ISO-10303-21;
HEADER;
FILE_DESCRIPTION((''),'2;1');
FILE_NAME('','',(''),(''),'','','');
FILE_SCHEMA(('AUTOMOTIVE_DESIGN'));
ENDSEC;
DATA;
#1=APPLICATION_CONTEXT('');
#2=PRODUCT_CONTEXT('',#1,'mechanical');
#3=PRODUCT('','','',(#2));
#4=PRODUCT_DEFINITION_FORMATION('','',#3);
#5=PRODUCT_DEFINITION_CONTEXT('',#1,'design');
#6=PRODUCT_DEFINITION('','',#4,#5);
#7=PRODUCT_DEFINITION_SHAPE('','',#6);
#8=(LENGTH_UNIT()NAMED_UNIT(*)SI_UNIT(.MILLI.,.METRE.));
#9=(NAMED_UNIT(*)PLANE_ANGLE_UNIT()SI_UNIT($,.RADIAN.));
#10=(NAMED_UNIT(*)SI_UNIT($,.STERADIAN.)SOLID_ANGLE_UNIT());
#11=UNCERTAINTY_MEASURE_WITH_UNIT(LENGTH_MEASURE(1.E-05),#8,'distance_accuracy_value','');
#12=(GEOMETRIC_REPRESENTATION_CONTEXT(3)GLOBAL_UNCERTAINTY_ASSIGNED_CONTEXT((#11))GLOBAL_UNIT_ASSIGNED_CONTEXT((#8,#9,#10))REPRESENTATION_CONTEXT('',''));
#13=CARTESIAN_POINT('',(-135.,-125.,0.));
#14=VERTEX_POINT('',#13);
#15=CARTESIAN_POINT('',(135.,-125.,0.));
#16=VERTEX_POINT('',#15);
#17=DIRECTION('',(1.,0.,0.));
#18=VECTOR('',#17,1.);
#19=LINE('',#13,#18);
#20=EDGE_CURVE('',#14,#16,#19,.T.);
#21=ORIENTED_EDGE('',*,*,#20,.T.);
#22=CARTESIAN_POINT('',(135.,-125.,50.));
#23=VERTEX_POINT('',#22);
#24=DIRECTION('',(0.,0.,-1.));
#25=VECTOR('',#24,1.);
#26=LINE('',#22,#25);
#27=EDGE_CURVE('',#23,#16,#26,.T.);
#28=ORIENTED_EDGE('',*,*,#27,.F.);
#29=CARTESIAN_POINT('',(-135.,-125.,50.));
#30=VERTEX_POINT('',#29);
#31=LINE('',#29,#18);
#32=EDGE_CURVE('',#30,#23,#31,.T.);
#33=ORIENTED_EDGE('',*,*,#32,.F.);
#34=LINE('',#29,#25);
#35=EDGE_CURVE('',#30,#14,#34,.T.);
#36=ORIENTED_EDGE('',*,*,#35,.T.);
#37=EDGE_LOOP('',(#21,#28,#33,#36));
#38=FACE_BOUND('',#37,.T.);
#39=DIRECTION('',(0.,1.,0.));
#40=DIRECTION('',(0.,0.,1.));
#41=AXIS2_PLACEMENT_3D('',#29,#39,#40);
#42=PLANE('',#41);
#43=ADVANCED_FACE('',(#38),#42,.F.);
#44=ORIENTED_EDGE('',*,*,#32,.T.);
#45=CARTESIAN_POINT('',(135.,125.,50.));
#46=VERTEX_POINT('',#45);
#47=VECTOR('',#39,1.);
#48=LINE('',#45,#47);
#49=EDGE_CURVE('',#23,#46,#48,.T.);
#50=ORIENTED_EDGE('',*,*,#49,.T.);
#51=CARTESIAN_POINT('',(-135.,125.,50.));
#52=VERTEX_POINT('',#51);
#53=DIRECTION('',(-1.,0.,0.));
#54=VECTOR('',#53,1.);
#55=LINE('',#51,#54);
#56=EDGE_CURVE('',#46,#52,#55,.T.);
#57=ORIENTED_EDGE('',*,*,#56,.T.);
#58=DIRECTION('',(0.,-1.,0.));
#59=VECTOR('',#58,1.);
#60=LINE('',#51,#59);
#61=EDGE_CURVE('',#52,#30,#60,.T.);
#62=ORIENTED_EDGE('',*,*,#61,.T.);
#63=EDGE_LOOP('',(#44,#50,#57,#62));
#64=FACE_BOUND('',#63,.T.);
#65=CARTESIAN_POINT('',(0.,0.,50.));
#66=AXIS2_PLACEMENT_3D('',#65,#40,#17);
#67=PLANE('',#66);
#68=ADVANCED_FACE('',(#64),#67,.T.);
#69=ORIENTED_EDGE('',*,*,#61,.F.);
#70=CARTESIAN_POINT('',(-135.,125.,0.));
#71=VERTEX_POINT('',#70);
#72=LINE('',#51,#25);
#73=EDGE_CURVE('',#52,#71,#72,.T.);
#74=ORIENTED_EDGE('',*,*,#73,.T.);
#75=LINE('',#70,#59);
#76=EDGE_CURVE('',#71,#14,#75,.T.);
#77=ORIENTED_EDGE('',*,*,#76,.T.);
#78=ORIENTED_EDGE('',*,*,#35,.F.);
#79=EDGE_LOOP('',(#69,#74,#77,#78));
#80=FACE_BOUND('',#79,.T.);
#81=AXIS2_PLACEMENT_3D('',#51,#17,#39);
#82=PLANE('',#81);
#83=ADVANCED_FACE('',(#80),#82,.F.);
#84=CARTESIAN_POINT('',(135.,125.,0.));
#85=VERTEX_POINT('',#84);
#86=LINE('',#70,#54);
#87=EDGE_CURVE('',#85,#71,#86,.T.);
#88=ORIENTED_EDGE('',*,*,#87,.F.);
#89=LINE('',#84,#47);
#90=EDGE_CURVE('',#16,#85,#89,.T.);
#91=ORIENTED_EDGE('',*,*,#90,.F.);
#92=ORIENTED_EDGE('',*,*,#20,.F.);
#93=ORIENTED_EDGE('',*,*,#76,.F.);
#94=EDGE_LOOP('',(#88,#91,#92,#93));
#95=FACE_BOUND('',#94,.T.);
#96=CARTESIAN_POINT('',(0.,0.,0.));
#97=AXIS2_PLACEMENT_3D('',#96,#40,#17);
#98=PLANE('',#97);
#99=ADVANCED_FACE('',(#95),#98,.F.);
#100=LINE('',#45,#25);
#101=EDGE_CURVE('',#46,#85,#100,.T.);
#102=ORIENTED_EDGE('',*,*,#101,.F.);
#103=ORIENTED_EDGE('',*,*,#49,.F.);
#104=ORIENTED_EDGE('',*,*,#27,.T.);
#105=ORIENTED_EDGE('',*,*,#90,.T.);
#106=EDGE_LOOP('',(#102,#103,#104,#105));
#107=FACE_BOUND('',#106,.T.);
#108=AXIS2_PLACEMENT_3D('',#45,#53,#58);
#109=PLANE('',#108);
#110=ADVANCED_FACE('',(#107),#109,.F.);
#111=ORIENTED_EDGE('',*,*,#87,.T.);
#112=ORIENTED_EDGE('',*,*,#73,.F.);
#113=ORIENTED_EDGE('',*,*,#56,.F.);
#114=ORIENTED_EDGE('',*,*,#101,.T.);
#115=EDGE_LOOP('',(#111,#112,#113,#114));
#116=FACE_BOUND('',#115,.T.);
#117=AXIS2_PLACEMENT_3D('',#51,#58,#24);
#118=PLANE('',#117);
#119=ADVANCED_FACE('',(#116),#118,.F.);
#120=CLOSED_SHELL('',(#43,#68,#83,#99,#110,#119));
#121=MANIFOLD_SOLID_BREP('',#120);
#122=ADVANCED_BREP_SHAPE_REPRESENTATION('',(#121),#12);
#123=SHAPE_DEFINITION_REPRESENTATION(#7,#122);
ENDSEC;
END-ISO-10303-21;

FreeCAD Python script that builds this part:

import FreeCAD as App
import Part
import Sketcher
from FreeCAD import Vector

doc = App.newDocument("Part")
body = doc.addObject("PartDesign::Body", "Body")

# Sketch on XY plane
sketch1 = body.newObject("Sketcher::SketchObject", "Sketch")
sketch1.AttachmentSupport = (doc.getObject("XY_Plane"), [""])
sketch1.MapMode = "FlatFace"
sketch1.addGeometry(Part.LineSegment(Vector(-135, 125, 0), Vector(-135, -125, 0)), False)
sketch1.addGeometry(Part.LineSegment(Vector(-135, -125, 0), Vector(135, -125, 0)), False)
sketch1.addGeometry(Part.LineSegment(Vector(135, -125, 0), Vector(135, 125, 0)), False)
sketch1.addGeometry(Part.LineSegment(Vector(135, 125, 0), Vector(-135, 125, 0)), False)
sketch1.addConstraint(Sketcher.Constraint("Coincident", 0, 2, 1, 1))
sketch1.addConstraint(Sketcher.Constraint("Coincident", 1, 2, 2, 1))
sketch1.addConstraint(Sketcher.Constraint("Coincident", 2, 2, 3, 1))
sketch1.addConstraint(Sketcher.Constraint("Coincident", 3, 2, 0, 1))
sketch1.addConstraint(Sketcher.Constraint("Vertical", 0))
sketch1.addConstraint(Sketcher.Constraint("Horizontal", 1))
sketch1.addConstraint(Sketcher.Constraint("Vertical", 2))
sketch1.addConstraint(Sketcher.Constraint("Horizontal", 3))
sketch1.addConstraint(Sketcher.Constraint("Symmetric", 0, 2, 2, 2, -1, 1))
sketch1.addConstraint(Sketcher.Constraint("DistanceX", 1, 1, 1, 2, 270.0))
sketch1.addConstraint(Sketcher.Constraint("DistanceY", 0, 2, 0, 1, 250.0))
pad1 = body.newObject("PartDesign::Pad", "Pad")
pad1.Profile = sketch1
pad1.Length = 50

doc.recompute()
